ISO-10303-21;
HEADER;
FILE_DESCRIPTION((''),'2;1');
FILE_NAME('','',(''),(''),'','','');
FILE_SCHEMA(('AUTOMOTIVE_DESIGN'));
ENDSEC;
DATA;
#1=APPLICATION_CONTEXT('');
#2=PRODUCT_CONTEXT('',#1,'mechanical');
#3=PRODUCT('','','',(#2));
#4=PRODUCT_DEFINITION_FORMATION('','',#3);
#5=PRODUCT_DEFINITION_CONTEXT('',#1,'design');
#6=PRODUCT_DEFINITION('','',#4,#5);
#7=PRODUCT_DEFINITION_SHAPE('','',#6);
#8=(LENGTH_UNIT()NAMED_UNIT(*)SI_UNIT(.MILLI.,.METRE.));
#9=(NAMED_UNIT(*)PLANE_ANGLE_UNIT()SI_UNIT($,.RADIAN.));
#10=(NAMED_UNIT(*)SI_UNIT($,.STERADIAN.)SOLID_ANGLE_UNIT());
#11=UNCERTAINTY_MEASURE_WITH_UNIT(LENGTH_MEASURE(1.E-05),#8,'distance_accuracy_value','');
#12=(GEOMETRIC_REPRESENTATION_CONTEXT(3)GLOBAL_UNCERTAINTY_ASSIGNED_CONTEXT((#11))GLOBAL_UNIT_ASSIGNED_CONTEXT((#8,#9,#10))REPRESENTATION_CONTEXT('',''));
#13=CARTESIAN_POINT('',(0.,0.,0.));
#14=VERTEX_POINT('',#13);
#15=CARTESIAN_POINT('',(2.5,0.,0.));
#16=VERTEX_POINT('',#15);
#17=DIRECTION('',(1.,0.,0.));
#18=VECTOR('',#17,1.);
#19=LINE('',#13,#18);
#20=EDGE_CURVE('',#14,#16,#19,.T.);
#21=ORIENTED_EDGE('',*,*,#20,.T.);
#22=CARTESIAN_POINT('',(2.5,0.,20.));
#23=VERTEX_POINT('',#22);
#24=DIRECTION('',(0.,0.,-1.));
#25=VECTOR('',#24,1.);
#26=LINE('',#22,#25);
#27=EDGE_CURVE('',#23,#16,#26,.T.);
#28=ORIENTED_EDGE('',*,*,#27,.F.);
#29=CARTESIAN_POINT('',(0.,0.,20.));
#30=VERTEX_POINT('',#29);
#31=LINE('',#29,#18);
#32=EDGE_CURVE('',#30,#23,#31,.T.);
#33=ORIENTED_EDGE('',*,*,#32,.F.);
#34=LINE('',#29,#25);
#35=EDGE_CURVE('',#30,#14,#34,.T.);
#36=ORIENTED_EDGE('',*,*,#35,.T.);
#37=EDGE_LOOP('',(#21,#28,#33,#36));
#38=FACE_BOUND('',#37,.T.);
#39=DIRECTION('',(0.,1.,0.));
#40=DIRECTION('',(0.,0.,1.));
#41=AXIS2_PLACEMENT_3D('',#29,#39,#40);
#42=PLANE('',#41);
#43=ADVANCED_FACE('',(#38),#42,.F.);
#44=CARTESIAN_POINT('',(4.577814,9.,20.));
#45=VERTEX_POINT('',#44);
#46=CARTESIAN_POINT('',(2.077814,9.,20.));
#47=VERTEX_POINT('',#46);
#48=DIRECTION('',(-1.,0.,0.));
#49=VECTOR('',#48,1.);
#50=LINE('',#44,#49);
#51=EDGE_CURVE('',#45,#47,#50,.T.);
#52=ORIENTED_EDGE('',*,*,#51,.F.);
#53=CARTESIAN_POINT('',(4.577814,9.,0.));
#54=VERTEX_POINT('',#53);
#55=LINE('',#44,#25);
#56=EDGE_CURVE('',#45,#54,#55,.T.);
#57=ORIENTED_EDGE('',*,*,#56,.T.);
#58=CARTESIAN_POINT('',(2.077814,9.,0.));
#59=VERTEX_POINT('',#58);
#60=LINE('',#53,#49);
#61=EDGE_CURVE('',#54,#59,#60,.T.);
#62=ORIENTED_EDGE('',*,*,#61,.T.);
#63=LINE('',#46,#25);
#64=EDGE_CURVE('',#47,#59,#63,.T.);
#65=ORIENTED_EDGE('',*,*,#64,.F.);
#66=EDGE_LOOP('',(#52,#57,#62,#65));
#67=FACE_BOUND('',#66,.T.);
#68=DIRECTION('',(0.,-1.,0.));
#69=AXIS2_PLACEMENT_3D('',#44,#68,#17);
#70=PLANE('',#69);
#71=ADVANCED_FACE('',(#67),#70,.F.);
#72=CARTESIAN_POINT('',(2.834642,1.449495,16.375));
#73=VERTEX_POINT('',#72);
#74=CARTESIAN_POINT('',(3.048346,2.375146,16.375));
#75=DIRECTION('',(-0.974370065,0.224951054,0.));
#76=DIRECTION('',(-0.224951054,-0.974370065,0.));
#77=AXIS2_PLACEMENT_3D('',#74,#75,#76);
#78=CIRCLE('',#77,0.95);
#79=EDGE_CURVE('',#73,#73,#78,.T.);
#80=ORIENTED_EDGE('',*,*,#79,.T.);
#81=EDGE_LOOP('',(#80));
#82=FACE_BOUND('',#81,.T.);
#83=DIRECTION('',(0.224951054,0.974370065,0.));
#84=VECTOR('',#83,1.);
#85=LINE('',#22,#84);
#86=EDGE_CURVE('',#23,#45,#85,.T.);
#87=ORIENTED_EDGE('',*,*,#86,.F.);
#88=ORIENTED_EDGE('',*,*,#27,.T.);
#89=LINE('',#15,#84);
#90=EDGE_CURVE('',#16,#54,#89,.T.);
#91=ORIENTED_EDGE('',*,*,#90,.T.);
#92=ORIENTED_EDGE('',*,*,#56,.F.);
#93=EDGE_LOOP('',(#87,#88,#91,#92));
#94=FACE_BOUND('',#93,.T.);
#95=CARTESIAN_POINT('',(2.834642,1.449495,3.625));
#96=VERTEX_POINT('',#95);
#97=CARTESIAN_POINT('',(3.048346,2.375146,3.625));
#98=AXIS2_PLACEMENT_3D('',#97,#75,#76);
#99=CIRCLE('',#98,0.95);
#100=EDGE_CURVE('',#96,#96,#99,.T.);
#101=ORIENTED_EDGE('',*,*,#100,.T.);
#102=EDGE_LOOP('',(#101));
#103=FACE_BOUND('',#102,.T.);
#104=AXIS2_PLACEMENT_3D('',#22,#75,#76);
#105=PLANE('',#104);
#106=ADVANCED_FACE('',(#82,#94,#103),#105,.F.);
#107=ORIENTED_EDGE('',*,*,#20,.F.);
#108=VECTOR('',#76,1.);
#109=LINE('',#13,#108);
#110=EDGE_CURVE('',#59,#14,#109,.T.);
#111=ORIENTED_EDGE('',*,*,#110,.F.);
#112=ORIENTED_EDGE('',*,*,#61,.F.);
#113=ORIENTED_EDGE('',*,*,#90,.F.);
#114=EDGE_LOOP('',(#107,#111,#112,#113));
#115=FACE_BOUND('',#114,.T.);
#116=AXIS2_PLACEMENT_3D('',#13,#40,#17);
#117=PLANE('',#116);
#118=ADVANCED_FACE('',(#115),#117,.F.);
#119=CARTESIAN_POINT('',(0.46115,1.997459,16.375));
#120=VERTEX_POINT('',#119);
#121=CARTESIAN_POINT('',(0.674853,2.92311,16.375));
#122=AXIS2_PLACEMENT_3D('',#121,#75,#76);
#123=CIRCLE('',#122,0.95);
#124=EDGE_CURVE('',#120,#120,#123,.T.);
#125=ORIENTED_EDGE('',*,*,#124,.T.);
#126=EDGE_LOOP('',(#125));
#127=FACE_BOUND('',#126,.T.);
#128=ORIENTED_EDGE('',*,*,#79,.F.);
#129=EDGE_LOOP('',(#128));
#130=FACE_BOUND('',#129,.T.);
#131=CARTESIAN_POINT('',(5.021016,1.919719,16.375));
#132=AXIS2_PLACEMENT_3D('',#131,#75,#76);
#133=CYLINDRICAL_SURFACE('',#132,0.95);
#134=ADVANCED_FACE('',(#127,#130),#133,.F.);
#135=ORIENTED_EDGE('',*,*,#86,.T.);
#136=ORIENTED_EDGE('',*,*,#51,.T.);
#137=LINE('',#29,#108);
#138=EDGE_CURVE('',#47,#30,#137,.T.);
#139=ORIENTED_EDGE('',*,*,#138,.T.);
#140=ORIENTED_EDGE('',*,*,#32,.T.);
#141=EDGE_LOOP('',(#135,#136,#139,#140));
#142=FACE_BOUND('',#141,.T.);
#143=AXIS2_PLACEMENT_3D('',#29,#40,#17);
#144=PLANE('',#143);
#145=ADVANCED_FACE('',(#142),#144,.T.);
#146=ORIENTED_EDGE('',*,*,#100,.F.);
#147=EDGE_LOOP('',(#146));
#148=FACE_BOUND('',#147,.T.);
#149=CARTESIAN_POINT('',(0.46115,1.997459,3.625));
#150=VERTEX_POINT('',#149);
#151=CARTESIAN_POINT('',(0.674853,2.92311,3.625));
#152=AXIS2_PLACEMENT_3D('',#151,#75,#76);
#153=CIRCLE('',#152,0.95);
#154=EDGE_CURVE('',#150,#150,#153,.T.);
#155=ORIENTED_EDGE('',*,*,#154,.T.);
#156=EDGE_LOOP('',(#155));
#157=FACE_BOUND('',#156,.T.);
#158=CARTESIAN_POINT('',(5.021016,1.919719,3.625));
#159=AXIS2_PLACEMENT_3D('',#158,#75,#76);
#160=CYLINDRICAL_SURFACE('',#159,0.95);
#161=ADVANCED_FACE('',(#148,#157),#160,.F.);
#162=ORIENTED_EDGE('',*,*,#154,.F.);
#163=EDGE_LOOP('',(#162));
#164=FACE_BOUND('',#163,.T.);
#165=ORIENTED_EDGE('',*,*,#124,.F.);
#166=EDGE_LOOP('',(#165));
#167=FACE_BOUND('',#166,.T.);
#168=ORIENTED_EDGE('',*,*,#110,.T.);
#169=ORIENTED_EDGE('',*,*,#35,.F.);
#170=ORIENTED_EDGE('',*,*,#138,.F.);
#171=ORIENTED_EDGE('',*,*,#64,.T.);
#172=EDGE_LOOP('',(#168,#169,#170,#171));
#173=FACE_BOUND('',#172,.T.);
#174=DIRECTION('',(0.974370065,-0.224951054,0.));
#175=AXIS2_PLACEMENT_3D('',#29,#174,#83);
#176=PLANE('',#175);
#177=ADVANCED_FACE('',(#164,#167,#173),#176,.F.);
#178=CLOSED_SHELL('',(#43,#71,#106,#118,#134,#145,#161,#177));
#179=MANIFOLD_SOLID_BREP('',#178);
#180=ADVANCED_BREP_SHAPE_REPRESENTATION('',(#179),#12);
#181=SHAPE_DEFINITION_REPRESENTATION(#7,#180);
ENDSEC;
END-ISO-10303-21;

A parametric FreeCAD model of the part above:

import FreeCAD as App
import Part
import Sketcher

V = App.Vector
Q = App.Units.Quantity


def add_polygon(sketch, points):
    """Adds a closed chain of lines whose ends are joined by coincident constraints."""
    first, n = sketch.GeometryCount, len(points)
    for a, b in zip(points, points[1:] + points[:1]):
        sketch.addGeometry(Part.LineSegment(App.Vector(*a, 0), App.Vector(*b, 0)), False)
    for i in range(n):
        sketch.addConstraint(Sketcher.Constraint("Coincident", first + i, 2, first + (i + 1) % n, 1))

doc = App.newDocument("Part")
body = doc.addObject("PartDesign::Body", "Body")

sketch1 = body.newObject("Sketcher::SketchObject", "Sketch")
sketch1.AttachmentSupport = (doc.getObject("XY_Plane"), [""])
sketch1.MapMode = "FlatFace"
add_polygon(sketch1, [(0, 0), (2.5, 0), (4.6, 9), (2.1, 9)])
sketch1.addConstraint(Sketcher.Constraint("Horizontal", 0))
sketch1.addConstraint(Sketcher.Constraint("Horizontal", 2))
sketch1.addConstraint(Sketcher.Constraint("Coincident", 3, 2, -1, 1))
sketch1.addConstraint(Sketcher.Constraint("Parallel", 1, 3))
sketch1.addConstraint(Sketcher.Constraint("Angle", 1, Q("77 deg")))
sketch1.addConstraint(Sketcher.Constraint("DistanceX", 0, 1, 0, 2, Q("2.5 mm")))
sketch1.addConstraint(Sketcher.Constraint("DistanceY", -1, 1, 1, 2, Q("9 mm")))
pad1 = body.newObject("PartDesign::Pad", "Pad")
pad1.Profile = sketch1
pad1.Length = 20

sketch2 = body.newObject("Sketcher::SketchObject", "Sketch001")
sketch2.Placement = App.Placement(V(0, 0, 0), App.Rotation(V(0, 0, 1), V(0.224951054, 0.974370065, 0), V(-0.974370065, 0.224951054, 0), "ZXY"))
sketch2.addGeometry(Part.Circle(V(3.6, 3, 0), V(0, 0, 1), 0.9), False)
sketch2.addGeometry(Part.Circle(V(16.4, 3, 0), V(0, 0, 1), 0.9), False)
sketch2.addConstraint(Sketcher.Constraint("Equal", 0, 1))
sketch2.addConstraint(Sketcher.Constraint("Horizontal", 0, 3, 1, 3))
sketch2.addConstraint(Sketcher.Constraint("Diameter", 0, Q("1.9 mm")))
sketch2.addConstraint(Sketcher.Constraint("DistanceY", -1, 1, 0, 3, Q("3 mm")))
sketch2.addConstraint(Sketcher.Constraint("DistanceX", 0, 3, 1, 3, Q("12.75 mm")))
sketch2.addConstraint(Sketcher.Constraint("DistanceX", -1, 1, 0, 3, Q("3.625 mm")))
pocket1 = body.newObject("PartDesign::Pocket", "Pocket")
pocket1.Profile = sketch2
pocket1.Type = "ThroughAll"

doc.recompute()
